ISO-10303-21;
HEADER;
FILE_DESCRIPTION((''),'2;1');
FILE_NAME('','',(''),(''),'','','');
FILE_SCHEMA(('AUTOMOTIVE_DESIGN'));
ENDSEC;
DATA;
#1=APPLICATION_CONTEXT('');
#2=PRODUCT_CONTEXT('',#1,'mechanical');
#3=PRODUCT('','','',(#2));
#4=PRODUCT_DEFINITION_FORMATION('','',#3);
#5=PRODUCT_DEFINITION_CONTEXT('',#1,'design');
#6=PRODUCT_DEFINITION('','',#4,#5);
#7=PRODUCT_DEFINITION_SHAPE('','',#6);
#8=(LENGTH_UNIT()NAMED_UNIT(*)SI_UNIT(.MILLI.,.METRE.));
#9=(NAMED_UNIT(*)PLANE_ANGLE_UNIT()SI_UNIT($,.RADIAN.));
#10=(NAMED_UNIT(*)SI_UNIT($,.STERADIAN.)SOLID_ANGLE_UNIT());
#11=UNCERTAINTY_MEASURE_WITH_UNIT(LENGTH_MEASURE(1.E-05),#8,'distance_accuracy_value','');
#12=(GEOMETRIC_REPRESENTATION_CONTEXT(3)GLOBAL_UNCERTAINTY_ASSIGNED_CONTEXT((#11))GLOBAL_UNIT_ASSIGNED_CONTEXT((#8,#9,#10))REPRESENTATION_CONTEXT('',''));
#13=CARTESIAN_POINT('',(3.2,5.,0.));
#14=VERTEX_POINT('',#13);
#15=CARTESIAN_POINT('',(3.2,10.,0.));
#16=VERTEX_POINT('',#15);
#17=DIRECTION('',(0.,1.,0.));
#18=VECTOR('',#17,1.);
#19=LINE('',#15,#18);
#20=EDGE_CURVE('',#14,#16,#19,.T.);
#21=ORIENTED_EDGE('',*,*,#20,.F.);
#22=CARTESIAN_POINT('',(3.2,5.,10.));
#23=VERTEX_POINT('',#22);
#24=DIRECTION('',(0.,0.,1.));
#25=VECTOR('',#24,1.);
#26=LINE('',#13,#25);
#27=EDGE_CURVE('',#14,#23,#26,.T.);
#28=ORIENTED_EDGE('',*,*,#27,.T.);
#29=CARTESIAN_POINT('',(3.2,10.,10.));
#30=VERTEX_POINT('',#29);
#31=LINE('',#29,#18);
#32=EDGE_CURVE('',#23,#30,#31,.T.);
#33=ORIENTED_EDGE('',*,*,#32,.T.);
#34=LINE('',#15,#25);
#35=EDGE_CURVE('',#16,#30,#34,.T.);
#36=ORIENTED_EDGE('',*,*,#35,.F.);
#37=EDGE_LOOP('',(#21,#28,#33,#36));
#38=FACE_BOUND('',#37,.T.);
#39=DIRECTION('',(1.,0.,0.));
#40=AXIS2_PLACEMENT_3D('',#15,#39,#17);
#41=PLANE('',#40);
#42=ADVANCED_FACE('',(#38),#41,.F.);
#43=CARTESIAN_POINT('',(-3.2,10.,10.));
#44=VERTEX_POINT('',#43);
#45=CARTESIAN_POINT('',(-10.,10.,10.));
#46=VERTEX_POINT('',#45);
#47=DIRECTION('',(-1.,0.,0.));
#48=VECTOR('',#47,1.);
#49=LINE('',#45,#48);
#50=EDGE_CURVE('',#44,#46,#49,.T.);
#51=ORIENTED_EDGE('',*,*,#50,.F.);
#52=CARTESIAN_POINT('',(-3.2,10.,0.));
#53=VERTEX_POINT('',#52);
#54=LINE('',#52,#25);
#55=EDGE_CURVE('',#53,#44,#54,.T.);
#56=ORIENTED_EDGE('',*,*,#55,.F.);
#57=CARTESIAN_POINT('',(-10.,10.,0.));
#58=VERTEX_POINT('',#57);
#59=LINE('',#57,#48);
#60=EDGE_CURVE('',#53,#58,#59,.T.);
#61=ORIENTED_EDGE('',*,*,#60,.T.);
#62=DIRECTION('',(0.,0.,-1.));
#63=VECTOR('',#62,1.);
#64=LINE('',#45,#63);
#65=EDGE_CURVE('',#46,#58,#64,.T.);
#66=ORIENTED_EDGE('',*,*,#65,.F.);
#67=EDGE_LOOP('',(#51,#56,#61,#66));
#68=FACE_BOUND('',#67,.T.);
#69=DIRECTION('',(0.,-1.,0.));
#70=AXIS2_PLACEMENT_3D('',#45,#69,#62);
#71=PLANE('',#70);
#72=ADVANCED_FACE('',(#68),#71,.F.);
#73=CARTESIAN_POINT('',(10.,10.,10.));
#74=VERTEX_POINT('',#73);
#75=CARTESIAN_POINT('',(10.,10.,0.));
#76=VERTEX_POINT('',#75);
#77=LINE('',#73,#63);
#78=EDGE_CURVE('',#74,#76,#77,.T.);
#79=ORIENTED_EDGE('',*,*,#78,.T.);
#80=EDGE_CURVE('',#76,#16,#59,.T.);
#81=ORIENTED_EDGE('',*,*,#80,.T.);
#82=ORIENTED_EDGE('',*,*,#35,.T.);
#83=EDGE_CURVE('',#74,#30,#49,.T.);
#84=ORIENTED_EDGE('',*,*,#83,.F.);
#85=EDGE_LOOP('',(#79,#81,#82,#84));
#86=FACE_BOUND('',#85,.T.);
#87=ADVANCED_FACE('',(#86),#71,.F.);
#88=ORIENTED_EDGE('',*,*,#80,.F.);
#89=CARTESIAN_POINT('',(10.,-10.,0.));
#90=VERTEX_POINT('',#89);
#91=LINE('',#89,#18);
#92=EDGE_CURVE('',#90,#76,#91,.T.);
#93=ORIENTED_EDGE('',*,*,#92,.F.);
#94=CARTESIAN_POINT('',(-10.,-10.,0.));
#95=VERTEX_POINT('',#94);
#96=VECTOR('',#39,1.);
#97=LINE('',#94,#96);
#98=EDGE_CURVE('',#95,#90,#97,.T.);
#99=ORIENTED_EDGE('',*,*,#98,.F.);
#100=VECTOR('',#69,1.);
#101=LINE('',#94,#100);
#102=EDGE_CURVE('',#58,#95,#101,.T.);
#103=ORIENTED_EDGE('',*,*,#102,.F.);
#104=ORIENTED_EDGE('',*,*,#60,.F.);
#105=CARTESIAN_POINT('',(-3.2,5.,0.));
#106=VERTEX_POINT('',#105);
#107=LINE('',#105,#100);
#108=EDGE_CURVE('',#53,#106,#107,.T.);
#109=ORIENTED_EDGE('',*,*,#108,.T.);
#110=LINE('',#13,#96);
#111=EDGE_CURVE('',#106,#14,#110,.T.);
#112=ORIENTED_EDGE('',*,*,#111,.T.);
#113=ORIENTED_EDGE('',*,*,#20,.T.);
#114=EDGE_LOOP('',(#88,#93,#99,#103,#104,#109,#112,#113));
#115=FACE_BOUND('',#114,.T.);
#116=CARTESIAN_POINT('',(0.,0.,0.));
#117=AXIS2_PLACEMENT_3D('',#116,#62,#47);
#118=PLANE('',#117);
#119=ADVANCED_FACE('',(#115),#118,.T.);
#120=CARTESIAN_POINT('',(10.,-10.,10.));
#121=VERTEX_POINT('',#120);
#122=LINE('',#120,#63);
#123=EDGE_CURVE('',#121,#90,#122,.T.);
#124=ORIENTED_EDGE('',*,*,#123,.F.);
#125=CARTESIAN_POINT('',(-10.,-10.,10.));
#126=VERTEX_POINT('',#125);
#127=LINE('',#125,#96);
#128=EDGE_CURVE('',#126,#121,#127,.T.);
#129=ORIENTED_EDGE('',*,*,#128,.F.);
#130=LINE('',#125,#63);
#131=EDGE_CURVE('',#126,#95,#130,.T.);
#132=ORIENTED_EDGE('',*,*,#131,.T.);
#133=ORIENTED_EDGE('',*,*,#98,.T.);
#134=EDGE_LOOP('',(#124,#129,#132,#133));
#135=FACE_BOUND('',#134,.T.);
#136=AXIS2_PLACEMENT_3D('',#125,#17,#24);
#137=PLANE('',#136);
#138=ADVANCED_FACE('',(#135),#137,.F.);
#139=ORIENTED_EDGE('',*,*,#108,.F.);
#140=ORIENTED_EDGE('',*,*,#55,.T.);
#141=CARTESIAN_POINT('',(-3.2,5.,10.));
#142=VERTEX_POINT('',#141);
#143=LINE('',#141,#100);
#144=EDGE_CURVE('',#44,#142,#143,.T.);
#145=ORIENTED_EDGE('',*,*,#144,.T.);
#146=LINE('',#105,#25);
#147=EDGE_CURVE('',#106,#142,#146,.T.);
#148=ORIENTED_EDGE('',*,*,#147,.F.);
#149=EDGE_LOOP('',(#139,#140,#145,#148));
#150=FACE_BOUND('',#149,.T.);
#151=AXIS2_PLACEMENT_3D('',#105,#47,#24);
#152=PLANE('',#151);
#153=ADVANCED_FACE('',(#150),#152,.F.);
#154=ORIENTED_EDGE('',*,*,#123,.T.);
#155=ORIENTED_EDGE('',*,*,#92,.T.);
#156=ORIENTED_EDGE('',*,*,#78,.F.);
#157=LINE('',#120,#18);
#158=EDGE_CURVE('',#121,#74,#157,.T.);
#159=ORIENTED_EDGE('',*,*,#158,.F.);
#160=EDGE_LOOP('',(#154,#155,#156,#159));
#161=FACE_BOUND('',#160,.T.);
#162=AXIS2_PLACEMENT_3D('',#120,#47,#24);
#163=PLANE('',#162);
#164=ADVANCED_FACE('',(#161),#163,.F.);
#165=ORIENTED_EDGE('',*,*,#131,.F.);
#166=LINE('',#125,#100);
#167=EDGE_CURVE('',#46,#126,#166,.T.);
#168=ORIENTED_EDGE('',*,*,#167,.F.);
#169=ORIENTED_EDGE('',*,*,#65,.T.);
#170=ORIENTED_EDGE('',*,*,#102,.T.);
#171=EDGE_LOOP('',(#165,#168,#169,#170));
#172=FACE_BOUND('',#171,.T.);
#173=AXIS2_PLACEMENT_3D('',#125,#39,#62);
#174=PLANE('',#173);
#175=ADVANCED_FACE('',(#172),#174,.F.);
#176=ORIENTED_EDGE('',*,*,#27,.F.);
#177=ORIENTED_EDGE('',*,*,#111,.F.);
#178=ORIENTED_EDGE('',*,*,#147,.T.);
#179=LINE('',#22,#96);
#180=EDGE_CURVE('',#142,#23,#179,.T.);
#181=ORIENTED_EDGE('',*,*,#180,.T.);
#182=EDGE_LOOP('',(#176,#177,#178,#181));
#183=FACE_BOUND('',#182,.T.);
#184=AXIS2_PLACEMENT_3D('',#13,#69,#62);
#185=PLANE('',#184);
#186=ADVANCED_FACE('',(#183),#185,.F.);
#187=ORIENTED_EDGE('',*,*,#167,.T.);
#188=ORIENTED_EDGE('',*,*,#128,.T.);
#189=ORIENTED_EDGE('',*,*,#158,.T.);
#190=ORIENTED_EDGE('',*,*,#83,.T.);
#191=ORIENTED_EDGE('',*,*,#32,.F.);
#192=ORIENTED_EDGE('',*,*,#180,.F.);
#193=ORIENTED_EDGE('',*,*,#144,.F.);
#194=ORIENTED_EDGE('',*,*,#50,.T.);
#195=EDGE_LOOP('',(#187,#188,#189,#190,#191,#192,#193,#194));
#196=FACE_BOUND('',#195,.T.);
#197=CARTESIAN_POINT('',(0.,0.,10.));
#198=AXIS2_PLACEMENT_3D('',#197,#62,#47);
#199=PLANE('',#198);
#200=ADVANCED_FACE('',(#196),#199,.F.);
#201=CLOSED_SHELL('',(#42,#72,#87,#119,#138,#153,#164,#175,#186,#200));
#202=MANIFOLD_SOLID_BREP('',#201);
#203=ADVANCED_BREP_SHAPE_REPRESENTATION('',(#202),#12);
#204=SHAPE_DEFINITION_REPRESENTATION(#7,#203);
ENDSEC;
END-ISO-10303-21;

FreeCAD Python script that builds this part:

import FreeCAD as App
import Part
import Sketcher


def add_polygon(sketch, points):
    """Adds a closed chain of lines whose ends are joined by coincident constraints."""
    first, n = sketch.GeometryCount, len(points)
    for a, b in zip(points, points[1:] + points[:1]):
        sketch.addGeometry(Part.LineSegment(App.Vector(*a, 0), App.Vector(*b, 0)), False)
    for i in range(n):
        sketch.addConstraint(Sketcher.Constraint("Coincident", first + i, 2, first + (i + 1) % n, 1))

doc = App.newDocument("Part")
body = doc.addObject("PartDesign::Body", "Body")

sketch1 = doc.addObject("Sketcher::SketchObject", "Sketch")
body.addObject(sketch1)
sketch1.AttachmentSupport = (doc.XY_Plane, [""])
sketch1.MapMode = "FlatFace"
add_polygon(sketch1, [(-10, 10), (-10, -10), (10, -10), (10, 10)])
sketch1.addConstraint([
    Sketcher.Constraint("Vertical", 0),
    Sketcher.Constraint("Horizontal", 1),
    Sketcher.Constraint("Vertical", 2),
    Sketcher.Constraint("Horizontal", 3),
    Sketcher.Constraint("Symmetric", 0, 2, 2, 2, -1, 1),
    Sketcher.Constraint("Equal", 3, 0),
    Sketcher.Constraint("DistanceX", 1, 1, 1, 2, 20.0),
])
pad1 = doc.addObject("PartDesign::Pad", "Pad")
body.addObject(pad1)
pad1.Profile = sketch1
pad1.Length = 10

sketch2 = doc.addObject("Sketcher::SketchObject", "Sketch001")
body.addObject(sketch2)
sketch2.AttachmentSupport = (doc.XY_Plane, [""])
sketch2.MapMode = "FlatFace"
sketch2.AttachmentOffset = App.Placement(App.Vector(0, 0, 10), App.Rotation())
add_polygon(sketch2, [(3, 10), (-3, 10), (-3, 5), (3, 5)])
sketch2.addConstraint([
    Sketcher.Constraint("Horizontal", 0),
    Sketcher.Constraint("Vertical", 1),
    Sketcher.Constraint("Horizontal", 2),
    Sketcher.Constraint("Vertical", 3),
    Sketcher.Constraint("DistanceY", 1, 2, 1, 1, 5.0),
    Sketcher.Constraint("DistanceX", 0, 2, 0, 1, 6.4),
    Sketcher.Constraint("DistanceY", -1, 1, 0, 2, 10.0),
    Sketcher.Constraint("DistanceX", 0, 2, -1, 1, 3.2),
])
pocket1 = doc.addObject("PartDesign::Pocket", "Pocket")
body.addObject(pocket1)
pocket1.Profile = sketch2
pocket1.Length = 10

doc.recompute()
